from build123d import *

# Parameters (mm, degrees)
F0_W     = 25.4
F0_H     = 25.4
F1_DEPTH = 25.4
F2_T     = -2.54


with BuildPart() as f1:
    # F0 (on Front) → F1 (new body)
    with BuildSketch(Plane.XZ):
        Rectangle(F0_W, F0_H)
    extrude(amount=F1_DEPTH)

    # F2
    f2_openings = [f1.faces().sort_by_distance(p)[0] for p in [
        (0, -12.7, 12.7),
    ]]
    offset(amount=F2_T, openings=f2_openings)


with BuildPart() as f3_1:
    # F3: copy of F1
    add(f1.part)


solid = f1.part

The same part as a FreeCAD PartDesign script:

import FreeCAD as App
import Part
import Sketcher

V = App.Vector
Q = App.Units.Quantity


def faces_at(feature, points):
    """Names of the faces that lie closest to the given points."""
    faces = feature.Shape.Faces
    near = lambda p: min(range(len(faces)), key=lambda i: faces[i].distToShape(Part.Vertex(*p))[0])
    return sorted({f"Face{near(p) + 1}" for p in points})

doc = App.newDocument("Part")
body = doc.addObject("PartDesign::Body", "Body")

sketch1 = doc.addObject("Sketcher::SketchObject", "Sketch")
body.addObject(sketch1)
sketch1.AttachmentSupport = (doc.XZ_Plane, [""])
sketch1.MapMode = "FlatFace"
sketch1.addGeometry(Part.LineSegment(V(-13, 13, 0), V(-13, -13, 0)), False)
sketch1.addGeometry(Part.LineSegment(V(-13, -13, 0), V(13, -13, 0)), False)
sketch1.addGeometry(Part.LineSegment(V(13, -13, 0), V(13, 13, 0)), False)
sketch1.addGeometry(Part.LineSegment(V(13, 13, 0), V(-13, 13, 0)), False)
sketch1.addConstraint(Sketcher.Constraint("Coincident", 0, 2, 1, 1))
sketch1.addConstraint(Sketcher.Constraint("Coincident", 1, 2, 2, 1))
sketch1.addConstraint(Sketcher.Constraint("Coincident", 2, 2, 3, 1))
sketch1.addConstraint(Sketcher.Constraint("Coincident", 3, 2, 0, 1))
sketch1.addConstraint(Sketcher.Constraint("Vertical", 0))
sketch1.addConstraint(Sketcher.Constraint("Horizontal", 1))
sketch1.addConstraint(Sketcher.Constraint("Vertical", 2))
sketch1.addConstraint(Sketcher.Constraint("Horizontal", 3))
sketch1.addConstraint(Sketcher.Constraint("Symmetric", 0, 2, 2, 2, -1, 1))
sketch1.addConstraint(Sketcher.Constraint("Equal", 3, 0))
sketch1.addConstraint(Sketcher.Constraint("DistanceX", 1, 1, 1, 2, Q("1 in")))
pad1 = doc.addObject("PartDesign::Pad", "Pad")
body.addObject(pad1)
pad1.Profile = sketch1
pad1.Length = Q("1 in")
doc.recompute()

thickness = doc.addObject("PartDesign::Thickness", "Thickness")
body.addObject(thickness)
thickness.Base = (pad1, faces_at(pad1, [(0, -12.7, 12.7)]))
thickness.Value = Q("0.1 in")
thickness.Reversed = True
thickness.Join = "Arc"
body2 = doc.addObject("PartDesign::Body", "Body001")
doc.recompute()

body2.BaseFeature = body
doc.recompute()
body.Visibility = False

doc.recompute()
